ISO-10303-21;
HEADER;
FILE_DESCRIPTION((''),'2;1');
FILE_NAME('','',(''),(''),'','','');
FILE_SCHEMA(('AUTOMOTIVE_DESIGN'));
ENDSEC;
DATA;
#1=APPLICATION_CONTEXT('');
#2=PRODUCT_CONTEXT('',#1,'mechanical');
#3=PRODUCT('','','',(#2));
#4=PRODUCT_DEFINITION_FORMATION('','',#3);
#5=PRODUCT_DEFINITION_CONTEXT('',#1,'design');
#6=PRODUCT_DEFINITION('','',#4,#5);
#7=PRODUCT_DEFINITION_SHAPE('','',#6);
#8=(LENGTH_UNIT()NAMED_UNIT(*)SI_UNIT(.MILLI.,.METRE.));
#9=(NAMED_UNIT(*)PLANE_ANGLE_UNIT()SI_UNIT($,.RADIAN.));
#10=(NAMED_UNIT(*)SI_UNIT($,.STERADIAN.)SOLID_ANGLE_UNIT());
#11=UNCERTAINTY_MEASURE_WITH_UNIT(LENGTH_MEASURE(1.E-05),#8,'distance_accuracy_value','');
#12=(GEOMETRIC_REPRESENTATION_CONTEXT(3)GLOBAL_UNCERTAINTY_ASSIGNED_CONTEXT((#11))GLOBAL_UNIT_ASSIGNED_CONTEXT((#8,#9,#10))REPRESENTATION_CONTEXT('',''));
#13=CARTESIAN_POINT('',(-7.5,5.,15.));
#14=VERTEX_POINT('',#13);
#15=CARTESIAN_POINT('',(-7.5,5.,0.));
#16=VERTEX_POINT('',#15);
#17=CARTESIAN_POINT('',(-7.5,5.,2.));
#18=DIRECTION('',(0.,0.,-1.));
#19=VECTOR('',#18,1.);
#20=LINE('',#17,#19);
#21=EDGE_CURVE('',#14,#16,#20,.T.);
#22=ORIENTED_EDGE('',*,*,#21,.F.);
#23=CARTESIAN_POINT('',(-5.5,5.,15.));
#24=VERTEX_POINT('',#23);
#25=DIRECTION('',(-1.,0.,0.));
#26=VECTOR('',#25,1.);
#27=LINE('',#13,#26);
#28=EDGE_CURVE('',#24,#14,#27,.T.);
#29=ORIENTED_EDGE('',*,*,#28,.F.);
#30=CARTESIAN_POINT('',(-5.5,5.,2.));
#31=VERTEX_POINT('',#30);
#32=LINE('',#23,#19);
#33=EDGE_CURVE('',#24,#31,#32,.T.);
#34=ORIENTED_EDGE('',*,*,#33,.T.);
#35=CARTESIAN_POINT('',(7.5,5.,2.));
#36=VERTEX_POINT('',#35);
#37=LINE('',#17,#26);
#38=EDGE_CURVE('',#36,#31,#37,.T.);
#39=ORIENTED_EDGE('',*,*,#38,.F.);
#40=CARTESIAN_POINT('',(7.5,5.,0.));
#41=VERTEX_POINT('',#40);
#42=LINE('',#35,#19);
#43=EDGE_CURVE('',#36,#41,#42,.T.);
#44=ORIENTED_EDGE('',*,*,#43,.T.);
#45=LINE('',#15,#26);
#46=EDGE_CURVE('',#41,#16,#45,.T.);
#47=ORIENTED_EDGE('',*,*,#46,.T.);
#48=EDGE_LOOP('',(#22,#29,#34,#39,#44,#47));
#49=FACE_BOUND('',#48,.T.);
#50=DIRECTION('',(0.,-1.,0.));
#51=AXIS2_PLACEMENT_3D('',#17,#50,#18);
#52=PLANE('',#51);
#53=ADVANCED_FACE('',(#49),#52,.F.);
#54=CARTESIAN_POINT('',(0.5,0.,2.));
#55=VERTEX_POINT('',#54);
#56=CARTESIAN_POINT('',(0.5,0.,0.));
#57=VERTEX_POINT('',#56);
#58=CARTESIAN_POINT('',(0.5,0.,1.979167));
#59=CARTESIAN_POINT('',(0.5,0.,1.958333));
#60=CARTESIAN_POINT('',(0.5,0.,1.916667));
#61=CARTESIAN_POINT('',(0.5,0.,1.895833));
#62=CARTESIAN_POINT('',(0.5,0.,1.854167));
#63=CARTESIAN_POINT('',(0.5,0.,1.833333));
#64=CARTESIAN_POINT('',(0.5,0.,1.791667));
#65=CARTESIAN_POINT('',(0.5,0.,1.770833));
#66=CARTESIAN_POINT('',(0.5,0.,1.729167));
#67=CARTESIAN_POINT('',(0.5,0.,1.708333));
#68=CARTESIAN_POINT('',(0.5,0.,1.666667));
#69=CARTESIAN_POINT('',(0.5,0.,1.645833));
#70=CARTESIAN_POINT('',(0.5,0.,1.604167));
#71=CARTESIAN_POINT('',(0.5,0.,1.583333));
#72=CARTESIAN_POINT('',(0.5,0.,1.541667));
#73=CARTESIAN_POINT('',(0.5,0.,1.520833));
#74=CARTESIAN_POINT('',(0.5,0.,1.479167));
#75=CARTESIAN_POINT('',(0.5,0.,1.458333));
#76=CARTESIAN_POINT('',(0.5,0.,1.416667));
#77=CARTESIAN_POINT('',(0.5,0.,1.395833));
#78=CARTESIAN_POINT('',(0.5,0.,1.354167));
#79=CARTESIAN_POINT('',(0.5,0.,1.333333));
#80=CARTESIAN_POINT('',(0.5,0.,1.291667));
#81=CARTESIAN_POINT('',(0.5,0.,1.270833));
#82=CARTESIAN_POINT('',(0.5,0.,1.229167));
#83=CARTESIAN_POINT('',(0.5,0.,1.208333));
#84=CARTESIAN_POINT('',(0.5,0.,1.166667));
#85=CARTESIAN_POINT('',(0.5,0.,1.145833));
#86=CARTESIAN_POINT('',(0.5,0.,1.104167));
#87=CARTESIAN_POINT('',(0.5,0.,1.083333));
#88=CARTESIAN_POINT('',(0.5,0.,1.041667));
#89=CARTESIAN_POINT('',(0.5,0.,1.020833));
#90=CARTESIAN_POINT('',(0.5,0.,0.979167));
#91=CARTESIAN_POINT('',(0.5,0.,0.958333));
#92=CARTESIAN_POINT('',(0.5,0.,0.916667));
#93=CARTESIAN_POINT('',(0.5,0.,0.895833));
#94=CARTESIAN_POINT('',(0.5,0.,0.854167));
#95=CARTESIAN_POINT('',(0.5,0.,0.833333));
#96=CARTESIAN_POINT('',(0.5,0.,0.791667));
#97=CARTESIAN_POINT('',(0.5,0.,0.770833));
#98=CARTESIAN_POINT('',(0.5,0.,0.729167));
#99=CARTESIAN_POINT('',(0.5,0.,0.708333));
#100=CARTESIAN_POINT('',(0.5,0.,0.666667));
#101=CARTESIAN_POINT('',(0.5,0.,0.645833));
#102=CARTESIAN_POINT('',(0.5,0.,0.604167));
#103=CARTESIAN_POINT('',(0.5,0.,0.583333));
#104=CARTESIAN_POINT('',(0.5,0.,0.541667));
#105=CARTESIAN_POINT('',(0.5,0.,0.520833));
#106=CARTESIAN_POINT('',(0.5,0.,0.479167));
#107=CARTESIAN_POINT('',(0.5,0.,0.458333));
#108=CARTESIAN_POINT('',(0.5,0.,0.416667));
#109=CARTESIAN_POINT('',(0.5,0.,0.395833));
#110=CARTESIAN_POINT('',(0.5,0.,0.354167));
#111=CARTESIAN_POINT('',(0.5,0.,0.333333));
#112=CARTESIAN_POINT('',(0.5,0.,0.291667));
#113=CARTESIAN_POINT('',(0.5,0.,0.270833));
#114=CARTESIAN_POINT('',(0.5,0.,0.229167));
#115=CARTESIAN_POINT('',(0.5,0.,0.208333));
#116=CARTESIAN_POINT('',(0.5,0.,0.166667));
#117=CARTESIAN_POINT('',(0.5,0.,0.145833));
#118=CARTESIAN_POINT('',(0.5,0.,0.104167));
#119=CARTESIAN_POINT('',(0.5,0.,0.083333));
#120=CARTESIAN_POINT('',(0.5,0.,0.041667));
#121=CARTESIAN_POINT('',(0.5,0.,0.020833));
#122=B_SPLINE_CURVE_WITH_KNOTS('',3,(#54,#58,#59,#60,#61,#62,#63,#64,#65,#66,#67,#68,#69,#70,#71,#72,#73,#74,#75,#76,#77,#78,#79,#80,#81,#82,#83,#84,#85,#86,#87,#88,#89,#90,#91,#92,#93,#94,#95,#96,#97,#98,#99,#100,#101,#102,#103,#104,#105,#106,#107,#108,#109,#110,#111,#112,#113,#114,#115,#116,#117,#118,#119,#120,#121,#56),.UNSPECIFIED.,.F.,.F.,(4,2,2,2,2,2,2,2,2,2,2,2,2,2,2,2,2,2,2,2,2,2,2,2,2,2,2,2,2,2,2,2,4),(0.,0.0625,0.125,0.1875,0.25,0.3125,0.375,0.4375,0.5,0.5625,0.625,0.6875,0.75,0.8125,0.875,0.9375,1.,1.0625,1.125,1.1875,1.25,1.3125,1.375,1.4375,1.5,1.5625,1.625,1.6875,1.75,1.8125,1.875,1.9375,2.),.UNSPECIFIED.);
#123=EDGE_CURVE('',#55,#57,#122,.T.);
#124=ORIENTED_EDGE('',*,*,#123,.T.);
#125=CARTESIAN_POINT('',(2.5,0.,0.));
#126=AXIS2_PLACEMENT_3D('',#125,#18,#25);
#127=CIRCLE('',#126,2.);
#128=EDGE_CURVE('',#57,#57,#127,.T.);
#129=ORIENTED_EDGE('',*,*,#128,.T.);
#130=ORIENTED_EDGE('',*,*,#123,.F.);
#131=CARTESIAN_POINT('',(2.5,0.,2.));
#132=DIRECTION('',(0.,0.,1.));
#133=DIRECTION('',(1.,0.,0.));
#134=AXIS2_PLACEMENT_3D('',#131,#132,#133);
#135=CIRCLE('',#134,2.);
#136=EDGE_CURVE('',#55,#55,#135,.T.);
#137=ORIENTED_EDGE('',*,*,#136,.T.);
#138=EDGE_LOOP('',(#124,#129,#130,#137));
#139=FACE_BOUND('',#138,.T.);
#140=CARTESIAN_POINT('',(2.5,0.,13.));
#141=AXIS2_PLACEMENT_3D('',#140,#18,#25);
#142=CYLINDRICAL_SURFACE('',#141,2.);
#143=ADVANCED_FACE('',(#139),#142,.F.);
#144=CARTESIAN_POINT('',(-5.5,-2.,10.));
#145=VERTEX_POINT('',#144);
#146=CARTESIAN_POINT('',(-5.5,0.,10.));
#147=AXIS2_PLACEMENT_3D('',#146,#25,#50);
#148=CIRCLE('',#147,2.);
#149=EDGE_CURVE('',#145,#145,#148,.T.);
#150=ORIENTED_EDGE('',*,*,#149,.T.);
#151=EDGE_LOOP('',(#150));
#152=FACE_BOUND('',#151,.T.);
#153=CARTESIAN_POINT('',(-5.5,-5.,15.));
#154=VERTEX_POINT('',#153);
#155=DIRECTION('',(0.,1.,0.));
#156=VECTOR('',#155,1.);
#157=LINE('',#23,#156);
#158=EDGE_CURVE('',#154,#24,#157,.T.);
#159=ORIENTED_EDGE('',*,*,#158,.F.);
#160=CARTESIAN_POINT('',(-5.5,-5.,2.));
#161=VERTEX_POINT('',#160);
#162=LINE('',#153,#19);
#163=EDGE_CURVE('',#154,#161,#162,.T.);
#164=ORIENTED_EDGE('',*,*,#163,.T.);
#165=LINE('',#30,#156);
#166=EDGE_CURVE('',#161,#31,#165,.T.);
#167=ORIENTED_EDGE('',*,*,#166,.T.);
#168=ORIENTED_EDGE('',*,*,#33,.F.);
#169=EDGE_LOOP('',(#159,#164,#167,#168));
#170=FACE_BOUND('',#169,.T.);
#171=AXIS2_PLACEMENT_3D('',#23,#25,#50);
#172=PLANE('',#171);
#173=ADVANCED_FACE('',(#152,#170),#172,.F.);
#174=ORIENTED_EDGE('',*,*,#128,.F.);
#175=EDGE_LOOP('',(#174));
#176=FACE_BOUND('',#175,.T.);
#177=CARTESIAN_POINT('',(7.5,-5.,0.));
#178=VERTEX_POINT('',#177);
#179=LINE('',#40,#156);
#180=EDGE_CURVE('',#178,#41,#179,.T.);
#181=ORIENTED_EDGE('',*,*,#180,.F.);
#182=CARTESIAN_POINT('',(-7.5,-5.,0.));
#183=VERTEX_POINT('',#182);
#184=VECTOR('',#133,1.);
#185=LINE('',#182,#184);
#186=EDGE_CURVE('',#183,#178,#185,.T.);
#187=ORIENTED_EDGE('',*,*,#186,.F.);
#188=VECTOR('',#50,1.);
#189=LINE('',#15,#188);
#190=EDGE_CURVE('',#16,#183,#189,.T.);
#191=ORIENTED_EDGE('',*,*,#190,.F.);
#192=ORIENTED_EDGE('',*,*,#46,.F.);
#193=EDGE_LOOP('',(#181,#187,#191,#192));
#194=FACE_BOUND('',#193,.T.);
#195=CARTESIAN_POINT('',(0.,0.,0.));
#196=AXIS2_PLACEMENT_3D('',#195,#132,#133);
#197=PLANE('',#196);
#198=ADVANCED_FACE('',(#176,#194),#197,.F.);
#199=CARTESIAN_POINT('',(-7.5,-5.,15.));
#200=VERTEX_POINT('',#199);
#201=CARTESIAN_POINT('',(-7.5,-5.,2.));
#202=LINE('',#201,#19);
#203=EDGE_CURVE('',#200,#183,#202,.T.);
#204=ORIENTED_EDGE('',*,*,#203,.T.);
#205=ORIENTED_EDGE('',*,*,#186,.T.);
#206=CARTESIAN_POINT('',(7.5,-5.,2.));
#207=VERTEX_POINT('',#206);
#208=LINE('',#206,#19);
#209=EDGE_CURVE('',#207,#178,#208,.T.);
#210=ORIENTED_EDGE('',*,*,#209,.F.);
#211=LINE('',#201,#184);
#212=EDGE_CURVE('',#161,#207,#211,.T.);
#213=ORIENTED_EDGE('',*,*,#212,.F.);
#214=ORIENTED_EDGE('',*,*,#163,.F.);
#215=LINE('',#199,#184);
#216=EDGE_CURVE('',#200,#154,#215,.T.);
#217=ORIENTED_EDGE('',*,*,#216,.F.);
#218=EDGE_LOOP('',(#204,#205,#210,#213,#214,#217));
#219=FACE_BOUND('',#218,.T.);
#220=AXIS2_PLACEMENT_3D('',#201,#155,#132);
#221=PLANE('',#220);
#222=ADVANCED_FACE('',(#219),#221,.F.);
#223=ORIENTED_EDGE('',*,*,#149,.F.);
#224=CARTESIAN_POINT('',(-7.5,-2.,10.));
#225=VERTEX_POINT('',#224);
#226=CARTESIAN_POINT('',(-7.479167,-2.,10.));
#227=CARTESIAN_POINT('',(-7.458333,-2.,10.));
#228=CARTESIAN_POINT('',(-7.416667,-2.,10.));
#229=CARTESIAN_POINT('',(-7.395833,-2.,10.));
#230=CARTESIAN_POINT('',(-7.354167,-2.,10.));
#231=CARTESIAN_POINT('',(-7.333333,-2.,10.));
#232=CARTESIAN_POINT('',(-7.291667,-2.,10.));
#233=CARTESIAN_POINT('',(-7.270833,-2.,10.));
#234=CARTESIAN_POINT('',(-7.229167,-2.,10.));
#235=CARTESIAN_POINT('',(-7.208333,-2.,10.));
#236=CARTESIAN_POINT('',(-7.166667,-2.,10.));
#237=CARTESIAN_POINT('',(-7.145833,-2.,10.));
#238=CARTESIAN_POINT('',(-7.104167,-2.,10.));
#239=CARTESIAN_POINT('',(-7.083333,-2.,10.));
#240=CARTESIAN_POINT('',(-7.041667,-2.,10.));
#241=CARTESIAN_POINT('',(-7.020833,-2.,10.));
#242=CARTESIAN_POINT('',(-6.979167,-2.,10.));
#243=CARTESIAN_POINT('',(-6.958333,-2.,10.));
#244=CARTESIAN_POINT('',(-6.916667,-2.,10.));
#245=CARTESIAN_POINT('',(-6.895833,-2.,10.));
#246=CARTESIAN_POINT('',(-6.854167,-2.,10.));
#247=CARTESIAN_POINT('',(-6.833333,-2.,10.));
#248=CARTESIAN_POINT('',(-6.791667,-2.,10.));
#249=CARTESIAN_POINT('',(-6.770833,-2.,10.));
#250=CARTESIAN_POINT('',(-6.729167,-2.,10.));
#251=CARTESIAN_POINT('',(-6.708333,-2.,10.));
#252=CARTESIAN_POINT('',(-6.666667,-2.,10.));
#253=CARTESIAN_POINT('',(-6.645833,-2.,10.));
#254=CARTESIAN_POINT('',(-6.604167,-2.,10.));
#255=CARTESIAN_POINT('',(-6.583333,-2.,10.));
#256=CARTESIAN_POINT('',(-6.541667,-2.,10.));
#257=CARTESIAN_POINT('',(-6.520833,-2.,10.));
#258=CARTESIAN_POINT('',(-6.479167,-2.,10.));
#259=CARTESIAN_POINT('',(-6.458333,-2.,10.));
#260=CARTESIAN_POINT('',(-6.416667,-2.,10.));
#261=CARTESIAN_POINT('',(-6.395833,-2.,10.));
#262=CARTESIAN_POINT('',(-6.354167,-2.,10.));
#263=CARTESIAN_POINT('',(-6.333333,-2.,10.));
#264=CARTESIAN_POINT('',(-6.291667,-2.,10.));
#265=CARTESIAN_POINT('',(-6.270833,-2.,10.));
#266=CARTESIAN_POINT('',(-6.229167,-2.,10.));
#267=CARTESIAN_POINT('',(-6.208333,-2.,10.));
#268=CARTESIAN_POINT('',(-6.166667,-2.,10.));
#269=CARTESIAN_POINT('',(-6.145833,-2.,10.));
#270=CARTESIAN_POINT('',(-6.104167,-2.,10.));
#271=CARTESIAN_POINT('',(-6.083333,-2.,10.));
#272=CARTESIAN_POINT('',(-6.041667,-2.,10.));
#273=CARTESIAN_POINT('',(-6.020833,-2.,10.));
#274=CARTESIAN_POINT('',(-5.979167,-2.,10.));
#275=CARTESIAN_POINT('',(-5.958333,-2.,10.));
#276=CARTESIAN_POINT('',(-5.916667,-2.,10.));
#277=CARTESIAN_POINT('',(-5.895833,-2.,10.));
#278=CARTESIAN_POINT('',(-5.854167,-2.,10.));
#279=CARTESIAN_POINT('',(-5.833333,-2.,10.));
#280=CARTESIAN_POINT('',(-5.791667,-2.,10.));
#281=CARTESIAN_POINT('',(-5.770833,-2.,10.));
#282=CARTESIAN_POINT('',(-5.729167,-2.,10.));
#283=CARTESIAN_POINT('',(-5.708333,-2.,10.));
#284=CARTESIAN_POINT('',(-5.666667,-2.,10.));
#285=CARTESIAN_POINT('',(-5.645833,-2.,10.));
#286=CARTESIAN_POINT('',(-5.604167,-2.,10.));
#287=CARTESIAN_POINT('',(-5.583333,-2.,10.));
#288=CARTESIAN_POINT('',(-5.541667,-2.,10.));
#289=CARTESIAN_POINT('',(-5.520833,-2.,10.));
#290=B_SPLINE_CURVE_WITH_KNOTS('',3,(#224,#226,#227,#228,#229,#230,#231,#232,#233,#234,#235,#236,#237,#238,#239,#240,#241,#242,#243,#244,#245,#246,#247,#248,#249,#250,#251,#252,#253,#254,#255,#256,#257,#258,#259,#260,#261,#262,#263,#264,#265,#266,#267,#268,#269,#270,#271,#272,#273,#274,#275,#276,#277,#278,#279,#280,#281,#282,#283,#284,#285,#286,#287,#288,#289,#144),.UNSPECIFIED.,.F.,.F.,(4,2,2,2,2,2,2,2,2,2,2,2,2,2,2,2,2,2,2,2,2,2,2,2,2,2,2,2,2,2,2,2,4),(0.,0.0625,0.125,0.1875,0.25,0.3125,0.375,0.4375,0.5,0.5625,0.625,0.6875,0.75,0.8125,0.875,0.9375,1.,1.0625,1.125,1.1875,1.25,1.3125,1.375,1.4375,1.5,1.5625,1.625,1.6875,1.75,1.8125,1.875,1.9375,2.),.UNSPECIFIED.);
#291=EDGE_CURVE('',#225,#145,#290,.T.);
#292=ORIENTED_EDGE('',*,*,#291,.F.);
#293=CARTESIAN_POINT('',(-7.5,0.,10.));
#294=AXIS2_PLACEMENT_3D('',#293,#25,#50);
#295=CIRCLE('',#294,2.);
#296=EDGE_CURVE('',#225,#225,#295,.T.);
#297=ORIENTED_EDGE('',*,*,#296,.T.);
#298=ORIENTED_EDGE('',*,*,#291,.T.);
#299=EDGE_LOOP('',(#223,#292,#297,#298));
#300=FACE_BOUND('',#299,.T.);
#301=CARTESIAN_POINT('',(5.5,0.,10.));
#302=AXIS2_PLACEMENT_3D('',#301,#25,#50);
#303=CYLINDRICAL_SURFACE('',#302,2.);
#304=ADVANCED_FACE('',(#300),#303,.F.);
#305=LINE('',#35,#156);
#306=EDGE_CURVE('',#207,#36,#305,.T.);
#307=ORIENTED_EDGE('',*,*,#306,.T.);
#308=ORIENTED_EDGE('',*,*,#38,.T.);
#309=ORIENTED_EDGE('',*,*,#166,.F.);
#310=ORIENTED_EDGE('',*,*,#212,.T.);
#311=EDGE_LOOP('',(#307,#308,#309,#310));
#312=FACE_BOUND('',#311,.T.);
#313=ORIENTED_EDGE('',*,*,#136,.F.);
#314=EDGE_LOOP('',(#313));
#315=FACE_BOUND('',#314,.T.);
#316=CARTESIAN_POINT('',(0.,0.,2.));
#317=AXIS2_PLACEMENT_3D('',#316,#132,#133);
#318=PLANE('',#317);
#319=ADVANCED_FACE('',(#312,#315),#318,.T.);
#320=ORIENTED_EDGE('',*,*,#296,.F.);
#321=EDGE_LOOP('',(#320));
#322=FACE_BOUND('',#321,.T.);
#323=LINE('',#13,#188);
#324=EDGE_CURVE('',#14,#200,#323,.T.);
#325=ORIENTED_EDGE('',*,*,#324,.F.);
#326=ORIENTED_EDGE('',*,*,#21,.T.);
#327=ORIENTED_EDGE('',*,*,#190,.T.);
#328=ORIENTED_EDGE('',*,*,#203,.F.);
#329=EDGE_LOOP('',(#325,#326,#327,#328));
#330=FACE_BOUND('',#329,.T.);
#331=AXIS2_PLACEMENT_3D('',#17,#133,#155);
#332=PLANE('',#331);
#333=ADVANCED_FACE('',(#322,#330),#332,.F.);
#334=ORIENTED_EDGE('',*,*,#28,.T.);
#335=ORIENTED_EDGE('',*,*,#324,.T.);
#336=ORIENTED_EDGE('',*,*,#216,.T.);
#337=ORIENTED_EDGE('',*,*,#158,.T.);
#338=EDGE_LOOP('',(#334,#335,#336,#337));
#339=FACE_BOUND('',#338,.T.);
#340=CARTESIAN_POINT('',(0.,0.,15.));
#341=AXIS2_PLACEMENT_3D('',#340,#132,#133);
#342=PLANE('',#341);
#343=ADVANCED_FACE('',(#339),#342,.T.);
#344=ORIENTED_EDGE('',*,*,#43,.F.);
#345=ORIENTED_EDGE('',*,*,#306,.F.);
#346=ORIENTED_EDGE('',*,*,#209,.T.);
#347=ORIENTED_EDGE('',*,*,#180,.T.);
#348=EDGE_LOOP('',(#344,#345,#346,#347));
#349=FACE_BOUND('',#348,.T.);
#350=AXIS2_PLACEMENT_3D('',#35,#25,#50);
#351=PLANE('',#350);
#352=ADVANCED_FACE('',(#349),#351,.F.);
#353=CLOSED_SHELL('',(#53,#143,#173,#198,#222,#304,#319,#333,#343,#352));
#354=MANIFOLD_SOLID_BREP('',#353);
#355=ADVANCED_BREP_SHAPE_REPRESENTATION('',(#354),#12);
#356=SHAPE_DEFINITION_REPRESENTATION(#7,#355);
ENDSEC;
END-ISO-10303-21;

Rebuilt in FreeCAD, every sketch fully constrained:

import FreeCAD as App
import Part
import Sketcher
from FreeCAD import Vector


def add_polygon(sketch, points):
    """Adds a closed chain of lines whose ends are joined by coincident constraints."""
    first, n = sketch.GeometryCount, len(points)
    for a, b in zip(points, points[1:] + points[:1]):
        sketch.addGeometry(Part.LineSegment(App.Vector(*a, 0), App.Vector(*b, 0)), False)
    for i in range(n):
        sketch.addConstraint(Sketcher.Constraint("Coincident", first + i, 2, first + (i + 1) % n, 1))

doc = App.newDocument("Part")
body = doc.addObject("PartDesign::Body", "Body")

sketch1 = body.newObject("Sketcher::SketchObject", "Sketch")
sketch1.AttachmentSupport = (doc.getObject("XY_Plane"), [""])
sketch1.MapMode = "FlatFace"
add_polygon(sketch1, [(-8, 5), (-8, -5), (8, -5), (8, 5)])
sketch1.addConstraint([
    Sketcher.Constraint("Vertical", 0),
    Sketcher.Constraint("Horizontal", 1),
    Sketcher.Constraint("Vertical", 2),
    Sketcher.Constraint("Horizontal", 3),
    Sketcher.Constraint("Symmetric", 0, 2, 2, 2, -1, 1),
    Sketcher.Constraint("DistanceX", 1, 1, 1, 2, 15.0),
    Sketcher.Constraint("DistanceY", 0, 2, 0, 1, 10.0),
])
pad1 = body.newObject("PartDesign::Pad", "Pad")
pad1.Profile = sketch1
pad1.Length = 2

sketch2 = body.newObject("Sketcher::SketchObject", "Sketch001")
sketch2.AttachmentSupport = (doc.getObject("XY_Plane"), [""])
sketch2.MapMode = "FlatFace"
sketch2.AttachmentOffset = App.Placement(Vector(0, 0, 2), App.Rotation())
add_polygon(sketch2, [(-7.5, 5), (-7.5, -5), (-5.5, -5), (-5.5, 5)])
sketch2.addConstraint([
    Sketcher.Constraint("Vertical", 0),
    Sketcher.Constraint("Horizontal", 1),
    Sketcher.Constraint("Vertical", 2),
    Sketcher.Constraint("Horizontal", 3),
    Sketcher.Constraint("DistanceX", 1, 1, 1, 2, 2.0),
    Sketcher.Constraint("DistanceY", 0, 2, 0, 1, 10.0),
    Sketcher.Constraint("DistanceY", 0, 2, -1, 1, 5.0),
    Sketcher.Constraint("DistanceX", 0, 2, -1, 1, 7.5),
])
pad2 = body.newObject("PartDesign::Pad", "Pad001")
pad2.Profile = sketch2
pad2.Length = 13

sketch3 = body.newObject("Sketcher::SketchObject", "Sketch002")
sketch3.AttachmentSupport = (doc.getObject("XY_Plane"), [""])
sketch3.MapMode = "FlatFace"
sketch3.addGeometry(Part.Circle(Vector(2.5, 0, 0), Vector(0, 0, 1), 2), False)
sketch3.addConstraint([
    Sketcher.Constraint("PointOnObject", 0, 3, -1),
    Sketcher.Constraint("Diameter", 0, 4.0),
    Sketcher.Constraint("DistanceX", -1, 1, 0, 3, 2.5),
])
pocket1 = body.newObject("PartDesign::Pocket", "Pocket")
pocket1.Profile = sketch3
pocket1.Length = 13
pocket1.Reversed = True

sketch4 = body.newObject("Sketcher::SketchObject", "Sketch003")
sketch4.AttachmentSupport = (doc.getObject("YZ_Plane"), [""])
sketch4.MapMode = "FlatFace"
sketch4.AttachmentOffset = App.Placement(Vector(0, 0, -7.5), App.Rotation())
sketch4.addGeometry(Part.Circle(Vector(0, 10, 0), Vector(0, 0, 1), 2), False)
sketch4.addConstraint([
    Sketcher.Constraint("PointOnObject", 0, 3, -2),
    Sketcher.Constraint("Diameter", 0, 4.0),
    Sketcher.Constraint("DistanceY", -1, 1, 0, 3, 10.0),
])
pocket2 = body.newObject("PartDesign::Pocket", "Pocket001")
pocket2.Profile = sketch4
pocket2.Length = 13
pocket2.Reversed = True

doc.recompute()
